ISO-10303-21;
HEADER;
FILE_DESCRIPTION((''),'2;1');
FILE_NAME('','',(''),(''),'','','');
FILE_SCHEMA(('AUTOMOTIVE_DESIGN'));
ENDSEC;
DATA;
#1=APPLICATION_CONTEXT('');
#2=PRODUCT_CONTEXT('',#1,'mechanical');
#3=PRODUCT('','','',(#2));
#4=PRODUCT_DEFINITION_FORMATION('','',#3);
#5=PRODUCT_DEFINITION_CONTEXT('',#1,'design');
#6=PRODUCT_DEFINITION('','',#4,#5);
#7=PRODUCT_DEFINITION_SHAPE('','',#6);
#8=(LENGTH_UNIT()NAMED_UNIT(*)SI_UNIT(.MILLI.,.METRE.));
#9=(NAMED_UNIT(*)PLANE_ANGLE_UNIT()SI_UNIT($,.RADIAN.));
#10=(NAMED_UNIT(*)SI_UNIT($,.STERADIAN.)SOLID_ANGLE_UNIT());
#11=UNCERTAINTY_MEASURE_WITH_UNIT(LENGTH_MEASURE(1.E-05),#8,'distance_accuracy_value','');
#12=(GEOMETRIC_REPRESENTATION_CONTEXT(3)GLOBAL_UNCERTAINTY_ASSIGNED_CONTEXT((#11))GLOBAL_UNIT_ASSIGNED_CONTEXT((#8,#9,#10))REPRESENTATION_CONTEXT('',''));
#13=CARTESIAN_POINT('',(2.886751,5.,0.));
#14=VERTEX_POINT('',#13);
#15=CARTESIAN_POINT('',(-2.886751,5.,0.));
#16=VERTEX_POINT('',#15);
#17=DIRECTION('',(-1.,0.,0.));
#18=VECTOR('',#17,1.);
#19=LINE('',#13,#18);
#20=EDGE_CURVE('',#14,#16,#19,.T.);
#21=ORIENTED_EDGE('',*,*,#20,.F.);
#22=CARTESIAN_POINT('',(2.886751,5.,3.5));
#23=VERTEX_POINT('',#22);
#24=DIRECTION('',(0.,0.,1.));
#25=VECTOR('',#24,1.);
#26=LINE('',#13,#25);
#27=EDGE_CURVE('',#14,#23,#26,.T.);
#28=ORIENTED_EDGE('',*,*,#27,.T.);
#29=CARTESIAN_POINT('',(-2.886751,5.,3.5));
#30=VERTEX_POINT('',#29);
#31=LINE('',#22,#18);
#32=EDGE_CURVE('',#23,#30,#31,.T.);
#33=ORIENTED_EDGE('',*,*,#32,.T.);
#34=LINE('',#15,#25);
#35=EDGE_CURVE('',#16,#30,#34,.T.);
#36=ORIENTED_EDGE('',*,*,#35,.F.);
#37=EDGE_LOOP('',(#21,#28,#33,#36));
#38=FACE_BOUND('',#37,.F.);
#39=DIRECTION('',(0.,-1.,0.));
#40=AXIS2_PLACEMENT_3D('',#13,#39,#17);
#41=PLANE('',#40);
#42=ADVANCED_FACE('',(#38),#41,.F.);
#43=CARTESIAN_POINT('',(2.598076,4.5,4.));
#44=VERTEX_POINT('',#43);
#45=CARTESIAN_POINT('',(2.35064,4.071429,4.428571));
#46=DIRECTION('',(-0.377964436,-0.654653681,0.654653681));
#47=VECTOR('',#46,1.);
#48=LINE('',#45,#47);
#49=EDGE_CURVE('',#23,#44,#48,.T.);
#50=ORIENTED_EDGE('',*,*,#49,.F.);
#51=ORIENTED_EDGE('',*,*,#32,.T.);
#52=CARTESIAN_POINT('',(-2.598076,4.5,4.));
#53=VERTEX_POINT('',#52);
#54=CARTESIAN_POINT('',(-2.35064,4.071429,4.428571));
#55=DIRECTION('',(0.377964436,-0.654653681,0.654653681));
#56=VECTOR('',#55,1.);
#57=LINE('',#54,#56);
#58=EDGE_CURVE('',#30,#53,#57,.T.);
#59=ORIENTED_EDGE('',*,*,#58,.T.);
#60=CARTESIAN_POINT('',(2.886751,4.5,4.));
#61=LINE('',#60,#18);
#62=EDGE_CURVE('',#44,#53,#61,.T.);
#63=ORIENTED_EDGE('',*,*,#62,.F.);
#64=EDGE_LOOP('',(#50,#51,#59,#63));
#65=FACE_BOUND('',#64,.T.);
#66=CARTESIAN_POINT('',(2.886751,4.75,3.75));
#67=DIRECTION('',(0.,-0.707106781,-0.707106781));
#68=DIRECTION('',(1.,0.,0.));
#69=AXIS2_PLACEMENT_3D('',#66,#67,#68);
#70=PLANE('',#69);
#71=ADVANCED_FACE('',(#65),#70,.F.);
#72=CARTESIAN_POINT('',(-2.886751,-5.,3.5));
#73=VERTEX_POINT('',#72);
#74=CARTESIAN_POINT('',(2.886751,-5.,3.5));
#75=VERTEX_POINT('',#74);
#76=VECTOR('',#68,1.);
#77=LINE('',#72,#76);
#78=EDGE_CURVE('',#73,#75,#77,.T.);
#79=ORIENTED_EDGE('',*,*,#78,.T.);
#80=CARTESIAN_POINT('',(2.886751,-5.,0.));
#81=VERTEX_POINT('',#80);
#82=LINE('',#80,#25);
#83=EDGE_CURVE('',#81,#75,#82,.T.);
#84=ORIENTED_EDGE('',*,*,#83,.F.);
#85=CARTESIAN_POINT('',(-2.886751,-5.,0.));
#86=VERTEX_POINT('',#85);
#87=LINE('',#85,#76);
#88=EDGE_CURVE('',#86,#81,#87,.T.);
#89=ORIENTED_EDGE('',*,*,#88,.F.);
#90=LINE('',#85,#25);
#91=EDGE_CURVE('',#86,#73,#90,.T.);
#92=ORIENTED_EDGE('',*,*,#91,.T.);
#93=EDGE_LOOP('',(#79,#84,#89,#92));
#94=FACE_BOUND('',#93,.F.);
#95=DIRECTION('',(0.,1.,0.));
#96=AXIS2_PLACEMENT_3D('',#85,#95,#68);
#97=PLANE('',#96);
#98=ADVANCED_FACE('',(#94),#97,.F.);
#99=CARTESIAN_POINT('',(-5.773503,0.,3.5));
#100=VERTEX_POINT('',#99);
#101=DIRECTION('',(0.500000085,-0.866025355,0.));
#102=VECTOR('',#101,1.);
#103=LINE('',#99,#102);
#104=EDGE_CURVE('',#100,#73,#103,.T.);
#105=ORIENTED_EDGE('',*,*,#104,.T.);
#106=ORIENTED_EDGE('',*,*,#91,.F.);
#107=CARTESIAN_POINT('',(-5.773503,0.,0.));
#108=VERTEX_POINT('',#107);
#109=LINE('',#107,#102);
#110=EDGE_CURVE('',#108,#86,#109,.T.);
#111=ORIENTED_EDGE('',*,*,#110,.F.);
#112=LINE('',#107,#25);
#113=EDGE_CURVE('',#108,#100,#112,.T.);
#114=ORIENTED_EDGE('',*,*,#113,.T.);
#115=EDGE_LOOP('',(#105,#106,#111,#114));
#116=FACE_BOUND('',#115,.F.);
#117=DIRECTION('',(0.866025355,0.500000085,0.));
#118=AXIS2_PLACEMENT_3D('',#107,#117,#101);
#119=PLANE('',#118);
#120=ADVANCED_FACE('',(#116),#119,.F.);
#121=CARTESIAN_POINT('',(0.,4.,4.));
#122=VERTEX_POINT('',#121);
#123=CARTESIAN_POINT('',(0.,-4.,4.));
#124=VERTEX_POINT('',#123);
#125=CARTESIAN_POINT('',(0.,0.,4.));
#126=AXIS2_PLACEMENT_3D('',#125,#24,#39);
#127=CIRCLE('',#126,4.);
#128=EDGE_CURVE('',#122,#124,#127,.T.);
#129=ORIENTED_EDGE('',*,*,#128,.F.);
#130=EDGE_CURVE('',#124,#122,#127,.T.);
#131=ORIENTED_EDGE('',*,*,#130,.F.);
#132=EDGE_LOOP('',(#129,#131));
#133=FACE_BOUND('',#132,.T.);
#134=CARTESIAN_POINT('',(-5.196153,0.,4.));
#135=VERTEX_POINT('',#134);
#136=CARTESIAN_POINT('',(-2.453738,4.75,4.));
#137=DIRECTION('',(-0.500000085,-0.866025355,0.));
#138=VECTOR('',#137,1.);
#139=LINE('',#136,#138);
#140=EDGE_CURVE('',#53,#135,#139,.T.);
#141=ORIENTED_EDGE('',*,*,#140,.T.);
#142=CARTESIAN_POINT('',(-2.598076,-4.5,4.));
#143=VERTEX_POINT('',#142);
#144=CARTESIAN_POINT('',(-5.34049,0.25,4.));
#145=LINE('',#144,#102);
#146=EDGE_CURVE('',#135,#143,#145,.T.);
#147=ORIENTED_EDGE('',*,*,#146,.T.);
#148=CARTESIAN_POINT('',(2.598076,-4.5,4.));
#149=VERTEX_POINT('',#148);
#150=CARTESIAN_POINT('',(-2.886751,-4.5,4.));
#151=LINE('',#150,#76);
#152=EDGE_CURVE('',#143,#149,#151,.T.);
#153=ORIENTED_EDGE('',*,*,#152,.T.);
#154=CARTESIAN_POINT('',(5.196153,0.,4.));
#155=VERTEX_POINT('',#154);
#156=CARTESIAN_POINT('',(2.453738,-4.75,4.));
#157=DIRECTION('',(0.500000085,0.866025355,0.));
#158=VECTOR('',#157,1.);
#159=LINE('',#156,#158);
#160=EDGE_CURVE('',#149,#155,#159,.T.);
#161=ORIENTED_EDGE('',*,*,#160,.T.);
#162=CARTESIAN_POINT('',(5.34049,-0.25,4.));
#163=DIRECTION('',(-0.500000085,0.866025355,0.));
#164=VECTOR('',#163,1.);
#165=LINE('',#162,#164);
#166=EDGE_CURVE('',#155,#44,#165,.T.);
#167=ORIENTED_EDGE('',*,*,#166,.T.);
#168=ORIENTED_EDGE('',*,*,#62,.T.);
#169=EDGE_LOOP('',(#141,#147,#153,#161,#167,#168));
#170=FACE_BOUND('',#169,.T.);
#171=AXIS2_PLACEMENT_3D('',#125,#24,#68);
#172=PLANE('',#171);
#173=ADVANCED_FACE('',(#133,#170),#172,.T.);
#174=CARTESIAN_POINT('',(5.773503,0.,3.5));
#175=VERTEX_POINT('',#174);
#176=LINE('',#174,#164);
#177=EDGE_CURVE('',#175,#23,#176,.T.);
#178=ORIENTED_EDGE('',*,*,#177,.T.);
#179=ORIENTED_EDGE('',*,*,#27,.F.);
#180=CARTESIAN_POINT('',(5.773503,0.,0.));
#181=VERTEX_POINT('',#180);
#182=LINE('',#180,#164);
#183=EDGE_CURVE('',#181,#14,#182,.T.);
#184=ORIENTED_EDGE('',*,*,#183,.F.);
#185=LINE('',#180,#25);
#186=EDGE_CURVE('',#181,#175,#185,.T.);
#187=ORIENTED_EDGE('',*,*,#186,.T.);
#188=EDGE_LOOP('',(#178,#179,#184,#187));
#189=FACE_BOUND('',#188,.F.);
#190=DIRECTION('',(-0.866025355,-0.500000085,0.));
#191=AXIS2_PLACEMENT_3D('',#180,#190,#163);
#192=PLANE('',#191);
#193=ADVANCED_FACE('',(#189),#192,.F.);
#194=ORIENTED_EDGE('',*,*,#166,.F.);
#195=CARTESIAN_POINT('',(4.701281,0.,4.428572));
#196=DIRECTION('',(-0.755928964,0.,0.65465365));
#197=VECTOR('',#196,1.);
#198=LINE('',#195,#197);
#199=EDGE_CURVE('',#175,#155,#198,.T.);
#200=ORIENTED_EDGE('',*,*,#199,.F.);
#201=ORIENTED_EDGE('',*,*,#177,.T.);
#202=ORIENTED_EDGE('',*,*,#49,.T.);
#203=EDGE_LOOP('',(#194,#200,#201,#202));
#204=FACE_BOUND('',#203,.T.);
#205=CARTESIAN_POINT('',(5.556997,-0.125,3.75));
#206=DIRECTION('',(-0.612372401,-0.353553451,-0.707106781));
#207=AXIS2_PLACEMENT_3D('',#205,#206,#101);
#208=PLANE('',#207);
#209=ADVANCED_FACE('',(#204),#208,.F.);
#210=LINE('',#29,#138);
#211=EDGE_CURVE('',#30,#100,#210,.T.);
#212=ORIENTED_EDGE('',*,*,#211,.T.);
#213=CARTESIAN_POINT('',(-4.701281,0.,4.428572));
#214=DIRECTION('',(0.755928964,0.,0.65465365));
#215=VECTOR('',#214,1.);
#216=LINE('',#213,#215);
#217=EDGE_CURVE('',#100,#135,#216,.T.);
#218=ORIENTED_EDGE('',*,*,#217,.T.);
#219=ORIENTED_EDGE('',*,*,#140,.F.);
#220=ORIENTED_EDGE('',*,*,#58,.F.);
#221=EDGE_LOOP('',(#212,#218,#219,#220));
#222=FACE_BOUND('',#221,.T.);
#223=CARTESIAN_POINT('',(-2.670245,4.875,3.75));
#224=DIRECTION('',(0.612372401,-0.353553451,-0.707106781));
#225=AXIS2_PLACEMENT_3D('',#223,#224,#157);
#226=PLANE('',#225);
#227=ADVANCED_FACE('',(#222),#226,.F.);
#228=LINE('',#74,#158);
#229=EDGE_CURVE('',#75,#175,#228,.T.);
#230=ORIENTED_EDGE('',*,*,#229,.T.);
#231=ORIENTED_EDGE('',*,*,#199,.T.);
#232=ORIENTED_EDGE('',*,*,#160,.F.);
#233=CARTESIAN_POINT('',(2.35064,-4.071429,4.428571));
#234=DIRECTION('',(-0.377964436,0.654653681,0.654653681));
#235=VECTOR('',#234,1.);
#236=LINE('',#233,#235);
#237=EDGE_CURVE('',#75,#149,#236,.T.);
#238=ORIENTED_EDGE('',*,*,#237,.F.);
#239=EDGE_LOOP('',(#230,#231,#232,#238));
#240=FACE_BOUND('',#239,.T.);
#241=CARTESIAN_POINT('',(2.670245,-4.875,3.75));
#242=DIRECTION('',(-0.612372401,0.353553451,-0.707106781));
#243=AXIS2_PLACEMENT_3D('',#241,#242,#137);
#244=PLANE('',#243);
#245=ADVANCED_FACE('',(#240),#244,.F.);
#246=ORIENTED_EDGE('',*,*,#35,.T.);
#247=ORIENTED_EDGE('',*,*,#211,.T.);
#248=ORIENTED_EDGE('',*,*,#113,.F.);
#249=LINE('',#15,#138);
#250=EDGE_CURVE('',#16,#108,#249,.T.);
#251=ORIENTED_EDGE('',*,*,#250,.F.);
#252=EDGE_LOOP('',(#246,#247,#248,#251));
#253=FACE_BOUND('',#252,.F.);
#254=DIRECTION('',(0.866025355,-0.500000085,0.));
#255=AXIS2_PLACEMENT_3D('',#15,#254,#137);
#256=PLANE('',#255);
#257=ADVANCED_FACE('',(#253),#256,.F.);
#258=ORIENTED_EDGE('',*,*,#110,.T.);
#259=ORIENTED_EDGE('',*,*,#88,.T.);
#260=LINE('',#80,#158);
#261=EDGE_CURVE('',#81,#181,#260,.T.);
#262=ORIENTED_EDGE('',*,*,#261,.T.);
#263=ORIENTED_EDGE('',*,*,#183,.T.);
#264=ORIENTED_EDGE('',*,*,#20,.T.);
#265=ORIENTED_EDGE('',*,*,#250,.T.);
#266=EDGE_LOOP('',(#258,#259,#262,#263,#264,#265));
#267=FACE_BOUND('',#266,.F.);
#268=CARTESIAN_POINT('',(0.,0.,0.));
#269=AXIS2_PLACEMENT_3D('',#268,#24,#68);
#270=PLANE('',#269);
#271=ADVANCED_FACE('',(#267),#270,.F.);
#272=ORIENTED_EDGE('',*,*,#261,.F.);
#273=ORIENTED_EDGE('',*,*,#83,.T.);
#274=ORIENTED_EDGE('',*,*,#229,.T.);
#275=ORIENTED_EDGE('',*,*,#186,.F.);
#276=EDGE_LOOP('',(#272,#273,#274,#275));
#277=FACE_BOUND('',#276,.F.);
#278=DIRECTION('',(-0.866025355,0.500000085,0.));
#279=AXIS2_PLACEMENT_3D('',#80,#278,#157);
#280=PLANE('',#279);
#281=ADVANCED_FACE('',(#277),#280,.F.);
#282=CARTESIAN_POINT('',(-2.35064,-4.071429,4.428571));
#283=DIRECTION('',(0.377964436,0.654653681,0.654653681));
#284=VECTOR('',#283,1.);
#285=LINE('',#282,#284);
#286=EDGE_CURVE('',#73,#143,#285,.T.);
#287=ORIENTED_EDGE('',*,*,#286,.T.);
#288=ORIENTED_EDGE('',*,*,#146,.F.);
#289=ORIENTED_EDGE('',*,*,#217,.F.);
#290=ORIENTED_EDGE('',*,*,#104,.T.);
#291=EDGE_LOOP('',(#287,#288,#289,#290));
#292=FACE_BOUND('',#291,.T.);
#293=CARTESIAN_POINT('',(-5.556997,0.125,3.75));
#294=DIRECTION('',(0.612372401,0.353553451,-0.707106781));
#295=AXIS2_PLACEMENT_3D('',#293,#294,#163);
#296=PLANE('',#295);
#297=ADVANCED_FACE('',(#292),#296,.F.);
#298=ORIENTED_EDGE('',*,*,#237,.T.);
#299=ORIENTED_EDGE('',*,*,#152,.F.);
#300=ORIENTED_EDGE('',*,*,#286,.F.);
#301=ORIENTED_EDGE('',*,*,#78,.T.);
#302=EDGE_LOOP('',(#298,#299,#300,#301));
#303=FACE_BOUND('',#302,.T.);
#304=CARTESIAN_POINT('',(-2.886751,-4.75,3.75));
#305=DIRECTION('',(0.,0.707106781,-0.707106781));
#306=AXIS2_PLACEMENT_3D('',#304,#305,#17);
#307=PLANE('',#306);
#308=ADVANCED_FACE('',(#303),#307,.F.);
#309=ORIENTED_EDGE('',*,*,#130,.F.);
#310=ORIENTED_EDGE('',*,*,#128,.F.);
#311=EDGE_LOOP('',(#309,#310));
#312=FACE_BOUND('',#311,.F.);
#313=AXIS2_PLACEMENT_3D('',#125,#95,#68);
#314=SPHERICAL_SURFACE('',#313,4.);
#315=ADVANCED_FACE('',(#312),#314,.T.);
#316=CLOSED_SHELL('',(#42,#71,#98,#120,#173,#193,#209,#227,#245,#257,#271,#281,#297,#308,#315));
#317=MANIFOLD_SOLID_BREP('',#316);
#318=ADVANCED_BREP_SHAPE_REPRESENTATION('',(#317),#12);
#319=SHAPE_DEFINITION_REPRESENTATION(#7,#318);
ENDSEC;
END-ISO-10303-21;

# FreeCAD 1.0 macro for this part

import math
import FreeCAD as App
import Part
import Sketcher
Q = App.Units.Quantity


def edges_at(feature, points):
    """Names of the edges that pass closest to the given points."""
    edges = feature.Shape.Edges
    near = lambda p: min(range(len(edges)), key=lambda i: edges[i].distToShape(Part.Vertex(*p))[0])
    return sorted({f"Edge{near(p) + 1}" for p in points})


def add_polygon(sketch, points):
    """Adds a closed chain of lines whose ends are joined by coincident constraints."""
    first, n = sketch.GeometryCount, len(points)
    for a, b in zip(points, points[1:] + points[:1]):
        sketch.addGeometry(Part.LineSegment(App.Vector(*a, 0), App.Vector(*b, 0)), False)
    for i in range(n):
        sketch.addConstraint(Sketcher.Constraint("Coincident", first + i, 2, first + (i + 1) % n, 1))

doc = App.newDocument("Part")
params = doc.addObject("Spreadsheet::Sheet", "Params")
for row, (alias, value) in enumerate([
    ("pad1_length", "4 mm"),
    ("chamfer_size", "0.5 mm"),
    ("sketch2_radius", "4 mm"),
    ("revolution_angle", "360 deg"),
], start=1):
    params.set(f"A{row}", alias)
    params.set(f"B{row}", "=" + value)
    params.setAlias(f"B{row}", alias)

body = doc.addObject("PartDesign::Body", "Body")

sketch1 = body.newObject("Sketcher::SketchObject", "Sketch")
sketch1.AttachmentSupport = (doc.getObject("XY_Plane"), [""])
sketch1.MapMode = "FlatFace"
add_polygon(sketch1, [(3, 5), (-3, 5), (-6, 0), (-3, -5), (3, -5), (6, 0)])
sketch1.addConstraint([
    Sketcher.Constraint("Horizontal", 0),
    Sketcher.Constraint("Horizontal", 3),
    Sketcher.Constraint("Symmetric", 0, 2, 3, 2, -1, 1),
    Sketcher.Constraint("Symmetric", 1, 2, 4, 2, -1, 1),
    Sketcher.Constraint("PointOnObject", 1, 2, -1),
    Sketcher.Constraint("Parallel", 2, 5),
    Sketcher.Constraint("Vertical", 0, 2, 2, 2),
    Sketcher.Constraint("Angle", 1, Q("-120.000006 deg")),
    Sketcher.Constraint("DistanceY", -1, 1, 0, 2, 5.0),
    Sketcher.Constraint("DistanceX", 0, 2, 0, 1, 5.773502),
])
pad1 = body.newObject("PartDesign::Pad", "Pad")
pad1.Profile = sketch1
pad1.setExpression("Length", "Params.pad1_length")
doc.recompute()

chamfer = body.newObject("PartDesign::Chamfer", "Chamfer")
chamfer.Base = (pad1, edges_at(pad1, [
    (4.33, -2.5, 4),
    (0, -5, 4),
    (-4.33, -2.5, 4),
    (-4.33, 2.5, 4),
    (0, 5, 4),
    (4.33, 2.5, 4),
]))
chamfer.setExpression("Size", "Params.chamfer_size")

sketch2 = body.newObject("Sketcher::SketchObject", "Sketch001")
sketch2.AttachmentSupport = (doc.getObject("XY_Plane"), [""])
sketch2.MapMode = "FlatFace"
sketch2.AttachmentOffset = App.Placement(App.Vector(0, 0, 4), App.Rotation())
sketch2.addGeometry([
    Part.LineSegment(App.Vector(0, 4, 0), App.Vector(0, -4, 0)),
    Part.ArcOfCircle(Part.Circle(App.Vector(0, 0, 0), App.Vector(0, 0, 1), 4), math.radians(-90), math.radians(90)),
], False)
sketch2.addConstraint([
    Sketcher.Constraint("Coincident", 0, 1, 1, 2),
    Sketcher.Constraint("Coincident", 1, 1, 0, 2),
    Sketcher.Constraint("Vertical", 0),
    Sketcher.Constraint("Coincident", 1, 3, -1, 1),
    Sketcher.Constraint("PointOnObject", 0, 1, -2),
    Sketcher.Constraint("Radius", 1, 4.0),
])
sketch2.setExpression("Constraints[5]", "Params.sketch2_radius")
revolution = body.newObject("PartDesign::Revolution", "Revolution")
revolution.Profile = sketch2
revolution.ReferenceAxis = (sketch2, ["V_Axis"])
revolution.setExpression("Angle", "Params.revolution_angle")

doc.recompute()
